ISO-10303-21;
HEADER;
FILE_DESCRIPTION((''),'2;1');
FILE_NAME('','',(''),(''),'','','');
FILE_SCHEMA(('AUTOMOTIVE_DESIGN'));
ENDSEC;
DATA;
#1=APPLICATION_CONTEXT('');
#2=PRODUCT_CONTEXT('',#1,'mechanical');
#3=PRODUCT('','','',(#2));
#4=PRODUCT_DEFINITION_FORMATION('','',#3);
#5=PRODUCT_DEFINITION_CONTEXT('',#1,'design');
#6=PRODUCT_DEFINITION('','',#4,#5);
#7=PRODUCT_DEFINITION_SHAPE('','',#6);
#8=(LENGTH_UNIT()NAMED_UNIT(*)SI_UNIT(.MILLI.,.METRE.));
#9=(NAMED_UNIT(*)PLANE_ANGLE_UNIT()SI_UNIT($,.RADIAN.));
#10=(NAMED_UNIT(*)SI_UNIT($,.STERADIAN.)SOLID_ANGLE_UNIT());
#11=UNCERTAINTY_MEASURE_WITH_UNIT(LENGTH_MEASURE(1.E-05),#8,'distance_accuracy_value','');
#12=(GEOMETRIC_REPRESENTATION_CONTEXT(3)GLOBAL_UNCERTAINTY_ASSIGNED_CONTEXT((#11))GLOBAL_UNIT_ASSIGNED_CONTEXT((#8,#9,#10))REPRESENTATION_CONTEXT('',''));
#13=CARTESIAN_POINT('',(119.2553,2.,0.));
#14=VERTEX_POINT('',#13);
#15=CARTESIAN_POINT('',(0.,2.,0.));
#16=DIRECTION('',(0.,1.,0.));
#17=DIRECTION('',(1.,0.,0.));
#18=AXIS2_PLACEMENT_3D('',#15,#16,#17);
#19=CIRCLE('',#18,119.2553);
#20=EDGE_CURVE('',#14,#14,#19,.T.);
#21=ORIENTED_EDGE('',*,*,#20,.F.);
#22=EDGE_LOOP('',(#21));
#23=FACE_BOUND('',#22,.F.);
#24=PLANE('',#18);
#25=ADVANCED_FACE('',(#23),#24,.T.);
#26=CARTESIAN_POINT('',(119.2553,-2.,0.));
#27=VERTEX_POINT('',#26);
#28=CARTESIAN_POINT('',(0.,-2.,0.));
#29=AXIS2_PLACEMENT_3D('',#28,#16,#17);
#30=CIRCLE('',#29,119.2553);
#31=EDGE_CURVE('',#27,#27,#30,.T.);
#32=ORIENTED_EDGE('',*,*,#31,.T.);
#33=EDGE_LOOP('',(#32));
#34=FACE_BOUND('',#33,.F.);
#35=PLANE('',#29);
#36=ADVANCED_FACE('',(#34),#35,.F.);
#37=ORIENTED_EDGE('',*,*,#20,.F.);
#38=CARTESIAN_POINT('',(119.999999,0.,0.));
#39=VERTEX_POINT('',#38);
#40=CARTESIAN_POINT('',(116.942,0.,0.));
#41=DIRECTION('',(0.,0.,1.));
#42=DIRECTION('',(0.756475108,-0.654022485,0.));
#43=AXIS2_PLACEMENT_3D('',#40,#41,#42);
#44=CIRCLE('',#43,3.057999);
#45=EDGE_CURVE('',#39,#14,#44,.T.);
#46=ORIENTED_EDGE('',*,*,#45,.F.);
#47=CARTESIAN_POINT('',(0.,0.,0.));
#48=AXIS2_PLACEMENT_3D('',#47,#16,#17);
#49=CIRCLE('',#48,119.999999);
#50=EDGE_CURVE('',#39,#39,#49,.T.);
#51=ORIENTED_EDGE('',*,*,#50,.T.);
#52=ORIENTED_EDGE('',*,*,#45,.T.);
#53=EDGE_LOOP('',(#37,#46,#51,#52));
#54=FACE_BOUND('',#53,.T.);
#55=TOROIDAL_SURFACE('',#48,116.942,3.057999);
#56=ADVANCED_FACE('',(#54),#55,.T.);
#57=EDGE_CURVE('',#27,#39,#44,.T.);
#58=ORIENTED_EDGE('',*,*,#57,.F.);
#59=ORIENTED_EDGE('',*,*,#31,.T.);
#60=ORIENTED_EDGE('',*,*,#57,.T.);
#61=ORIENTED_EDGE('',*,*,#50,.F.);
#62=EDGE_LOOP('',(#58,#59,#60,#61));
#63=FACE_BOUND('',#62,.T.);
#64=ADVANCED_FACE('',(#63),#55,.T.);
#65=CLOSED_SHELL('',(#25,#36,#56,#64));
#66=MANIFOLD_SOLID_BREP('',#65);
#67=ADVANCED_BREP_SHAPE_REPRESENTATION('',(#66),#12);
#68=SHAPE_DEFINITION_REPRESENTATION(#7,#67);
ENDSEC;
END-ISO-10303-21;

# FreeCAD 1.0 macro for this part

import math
import FreeCAD as App
import Part
import Sketcher
Q = App.Units.Quantity

doc = App.newDocument("Part")
body = doc.addObject("PartDesign::Body", "Body")

sketch1 = doc.addObject("Sketcher::SketchObject", "Sketch")
body.addObject(sketch1)
sketch1.AttachmentSupport = (doc.XY_Plane, [""])
sketch1.MapMode = "FlatFace"
sketch1.addGeometry([
    Part.LineSegment(App.Vector(0, -2, 0), App.Vector(119.3, -2, 0)),
    Part.ArcOfCircle(Part.Circle(App.Vector(116.9, 0, 0), App.Vector(0, 0, 1), 3.1), math.radians(-41), math.radians(41)),
    Part.LineSegment(App.Vector(119.3, 2, 0), App.Vector(0, 2, 0)),
    Part.LineSegment(App.Vector(0, 2, 0), App.Vector(0, -2, 0)),
], False)
sketch1.addConstraint([
    Sketcher.Constraint("Coincident", 0, 2, 1, 1),
    Sketcher.Constraint("Coincident", 1, 2, 2, 1),
    Sketcher.Constraint("Coincident", 2, 2, 3, 1),
    Sketcher.Constraint("Coincident", 3, 2, 0, 1),
    Sketcher.Constraint("Horizontal", 0),
    Sketcher.Constraint("Horizontal", 2),
    Sketcher.Constraint("Vertical", 3),
    Sketcher.Constraint("Symmetric", 2, 2, 3, 2, -1, 1),
    Sketcher.Constraint("PointOnObject", 1, 3, -1),
    Sketcher.Constraint("DistanceY", 3, 2, 3, 1, Q("4 mm")),
    Sketcher.Constraint("Radius", 1, Q("3.058 mm")),
    Sketcher.Constraint("DistanceX", 0, 1, 0, 2, Q("119.2553 mm")),
])
revolution = doc.addObject("PartDesign::Revolution", "Revolution")
body.addObject(revolution)
revolution.Profile = sketch1
revolution.ReferenceAxis = (sketch1, ["V_Axis"])
revolution.Angle = 360

doc.recompute()
